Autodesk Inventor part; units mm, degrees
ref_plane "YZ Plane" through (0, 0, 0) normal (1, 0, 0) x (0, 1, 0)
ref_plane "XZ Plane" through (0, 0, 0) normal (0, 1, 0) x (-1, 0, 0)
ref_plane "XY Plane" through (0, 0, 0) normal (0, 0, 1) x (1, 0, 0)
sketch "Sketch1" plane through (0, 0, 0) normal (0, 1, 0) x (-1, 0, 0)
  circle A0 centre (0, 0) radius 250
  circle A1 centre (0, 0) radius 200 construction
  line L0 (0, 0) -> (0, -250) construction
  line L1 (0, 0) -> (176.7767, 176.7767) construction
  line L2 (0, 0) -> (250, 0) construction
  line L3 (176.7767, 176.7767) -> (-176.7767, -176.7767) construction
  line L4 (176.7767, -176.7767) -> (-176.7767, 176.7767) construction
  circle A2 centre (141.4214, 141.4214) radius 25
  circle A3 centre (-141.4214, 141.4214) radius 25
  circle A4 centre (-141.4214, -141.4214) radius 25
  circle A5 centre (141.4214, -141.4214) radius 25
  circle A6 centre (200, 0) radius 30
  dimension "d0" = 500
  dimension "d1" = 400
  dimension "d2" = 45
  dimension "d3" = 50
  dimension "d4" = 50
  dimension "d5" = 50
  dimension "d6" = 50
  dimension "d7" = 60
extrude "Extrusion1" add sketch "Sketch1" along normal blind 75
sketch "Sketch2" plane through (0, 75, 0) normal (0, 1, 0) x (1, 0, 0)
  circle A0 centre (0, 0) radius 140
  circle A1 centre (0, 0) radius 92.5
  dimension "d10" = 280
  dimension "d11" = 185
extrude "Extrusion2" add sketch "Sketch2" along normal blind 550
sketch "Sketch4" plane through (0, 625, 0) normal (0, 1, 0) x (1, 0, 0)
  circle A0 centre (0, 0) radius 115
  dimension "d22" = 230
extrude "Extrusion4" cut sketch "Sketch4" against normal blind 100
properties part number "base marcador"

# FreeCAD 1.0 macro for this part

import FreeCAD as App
import Part
import Sketcher
Q = App.Units.Quantity

doc = App.newDocument("Part")
body = doc.addObject("PartDesign::Body", "Body")

sketch1 = body.newObject("Sketcher::SketchObject", "Sketch")
sketch1.AttachmentSupport = (doc.getObject("XZ_Plane"), [""])
sketch1.MapMode = "FlatFace"
sketch1.addGeometry([
    Part.Circle(App.Vector(0, 0, 0), App.Vector(0, 0, 1), 250),
    Part.Circle(App.Vector(141, -141, 0), App.Vector(0, 0, 1), 25),
    Part.Circle(App.Vector(-141, -141, 0), App.Vector(0, 0, 1), 25),
    Part.Circle(App.Vector(141, 141, 0), App.Vector(0, 0, 1), 25),
    Part.Circle(App.Vector(-200, 0, 0), App.Vector(0, 0, 1), 30),
    Part.Circle(App.Vector(-141, 141, 0), App.Vector(0, 0, 1), 25),
], False)
sketch1.addConstraint([
    Sketcher.Constraint("Coincident", 0, 3, -1, 1),
    Sketcher.Constraint("Equal", 1, 2),
    Sketcher.Constraint("Equal", 2, 3),
    Sketcher.Constraint("Equal", 3, 5),
    Sketcher.Constraint("Symmetric", 2, 3, 3, 3, -1, 1),
    Sketcher.Constraint("Symmetric", 1, 3, 5, 3, -1, 1),
    Sketcher.Constraint("Symmetric", 1, 3, 2, 3, -2),
    Sketcher.Constraint("PointOnObject", 4, 3, -1),
    Sketcher.Constraint("Diameter", 0, Q("500 mm")),
    Sketcher.Constraint("Diameter", 1, Q("50 mm")),
    Sketcher.Constraint("Diameter", 4, Q("60 mm")),
    Sketcher.Constraint("DistanceX", 4, 3, -1, 1, Q("200 mm")),
    Sketcher.Constraint("DistanceX", -1, 1, 1, 3, Q("141.4214 mm")),
    Sketcher.Constraint("DistanceY", 1, 3, -1, 1, Q("141.4214 mm")),
])
pad1 = body.newObject("PartDesign::Pad", "Pad")
pad1.Profile = sketch1
pad1.Length = 75
pad1.Reversed = True

sketch2 = body.newObject("Sketcher::SketchObject", "Sketch001")
sketch2.AttachmentSupport = (doc.getObject("XZ_Plane"), [""])
sketch2.MapMode = "FlatFace"
sketch2.AttachmentOffset = App.Placement(App.Vector(0, 0, -75), App.Rotation())
sketch2.addGeometry([
    Part.Circle(App.Vector(0, 0, 0), App.Vector(0, 0, 1), 140),
    Part.Circle(App.Vector(0, 0, 0), App.Vector(0, 0, 1), 92),
], False)
sketch2.addConstraint([
    Sketcher.Constraint("Coincident", 0, 3, -1, 1),
    Sketcher.Constraint("Coincident", 1, 3, -1, 1),
    Sketcher.Constraint("Diameter", 0, Q("280 mm")),
    Sketcher.Constraint("Diameter", 1, Q("185 mm")),
])
pad2 = body.newObject("PartDesign::Pad", "Pad001")
pad2.Profile = sketch2
pad2.Length = 550
pad2.Reversed = True

sketch3 = body.newObject("Sketcher::SketchObject", "Sketch002")
sketch3.AttachmentSupport = (doc.getObject("XZ_Plane"), [""])
sketch3.MapMode = "FlatFace"
sketch3.AttachmentOffset = App.Placement(App.Vector(0, 0, -625), App.Rotation())
sketch3.addGeometry(Part.Circle(App.Vector(0, 0, 0), App.Vector(0, 0, 1), 115), False)
sketch3.addConstraint([
    Sketcher.Constraint("Coincident", 0, 3, -1, 1),
    Sketcher.Constraint("Diameter", 0, Q("230 mm")),
])
pocket1 = body.newObject("PartDesign::Pocket", "Pocket")
pocket1.Profile = sketch3
pocket1.Length = 100
pocket1.Reversed = True

doc.recompute()
